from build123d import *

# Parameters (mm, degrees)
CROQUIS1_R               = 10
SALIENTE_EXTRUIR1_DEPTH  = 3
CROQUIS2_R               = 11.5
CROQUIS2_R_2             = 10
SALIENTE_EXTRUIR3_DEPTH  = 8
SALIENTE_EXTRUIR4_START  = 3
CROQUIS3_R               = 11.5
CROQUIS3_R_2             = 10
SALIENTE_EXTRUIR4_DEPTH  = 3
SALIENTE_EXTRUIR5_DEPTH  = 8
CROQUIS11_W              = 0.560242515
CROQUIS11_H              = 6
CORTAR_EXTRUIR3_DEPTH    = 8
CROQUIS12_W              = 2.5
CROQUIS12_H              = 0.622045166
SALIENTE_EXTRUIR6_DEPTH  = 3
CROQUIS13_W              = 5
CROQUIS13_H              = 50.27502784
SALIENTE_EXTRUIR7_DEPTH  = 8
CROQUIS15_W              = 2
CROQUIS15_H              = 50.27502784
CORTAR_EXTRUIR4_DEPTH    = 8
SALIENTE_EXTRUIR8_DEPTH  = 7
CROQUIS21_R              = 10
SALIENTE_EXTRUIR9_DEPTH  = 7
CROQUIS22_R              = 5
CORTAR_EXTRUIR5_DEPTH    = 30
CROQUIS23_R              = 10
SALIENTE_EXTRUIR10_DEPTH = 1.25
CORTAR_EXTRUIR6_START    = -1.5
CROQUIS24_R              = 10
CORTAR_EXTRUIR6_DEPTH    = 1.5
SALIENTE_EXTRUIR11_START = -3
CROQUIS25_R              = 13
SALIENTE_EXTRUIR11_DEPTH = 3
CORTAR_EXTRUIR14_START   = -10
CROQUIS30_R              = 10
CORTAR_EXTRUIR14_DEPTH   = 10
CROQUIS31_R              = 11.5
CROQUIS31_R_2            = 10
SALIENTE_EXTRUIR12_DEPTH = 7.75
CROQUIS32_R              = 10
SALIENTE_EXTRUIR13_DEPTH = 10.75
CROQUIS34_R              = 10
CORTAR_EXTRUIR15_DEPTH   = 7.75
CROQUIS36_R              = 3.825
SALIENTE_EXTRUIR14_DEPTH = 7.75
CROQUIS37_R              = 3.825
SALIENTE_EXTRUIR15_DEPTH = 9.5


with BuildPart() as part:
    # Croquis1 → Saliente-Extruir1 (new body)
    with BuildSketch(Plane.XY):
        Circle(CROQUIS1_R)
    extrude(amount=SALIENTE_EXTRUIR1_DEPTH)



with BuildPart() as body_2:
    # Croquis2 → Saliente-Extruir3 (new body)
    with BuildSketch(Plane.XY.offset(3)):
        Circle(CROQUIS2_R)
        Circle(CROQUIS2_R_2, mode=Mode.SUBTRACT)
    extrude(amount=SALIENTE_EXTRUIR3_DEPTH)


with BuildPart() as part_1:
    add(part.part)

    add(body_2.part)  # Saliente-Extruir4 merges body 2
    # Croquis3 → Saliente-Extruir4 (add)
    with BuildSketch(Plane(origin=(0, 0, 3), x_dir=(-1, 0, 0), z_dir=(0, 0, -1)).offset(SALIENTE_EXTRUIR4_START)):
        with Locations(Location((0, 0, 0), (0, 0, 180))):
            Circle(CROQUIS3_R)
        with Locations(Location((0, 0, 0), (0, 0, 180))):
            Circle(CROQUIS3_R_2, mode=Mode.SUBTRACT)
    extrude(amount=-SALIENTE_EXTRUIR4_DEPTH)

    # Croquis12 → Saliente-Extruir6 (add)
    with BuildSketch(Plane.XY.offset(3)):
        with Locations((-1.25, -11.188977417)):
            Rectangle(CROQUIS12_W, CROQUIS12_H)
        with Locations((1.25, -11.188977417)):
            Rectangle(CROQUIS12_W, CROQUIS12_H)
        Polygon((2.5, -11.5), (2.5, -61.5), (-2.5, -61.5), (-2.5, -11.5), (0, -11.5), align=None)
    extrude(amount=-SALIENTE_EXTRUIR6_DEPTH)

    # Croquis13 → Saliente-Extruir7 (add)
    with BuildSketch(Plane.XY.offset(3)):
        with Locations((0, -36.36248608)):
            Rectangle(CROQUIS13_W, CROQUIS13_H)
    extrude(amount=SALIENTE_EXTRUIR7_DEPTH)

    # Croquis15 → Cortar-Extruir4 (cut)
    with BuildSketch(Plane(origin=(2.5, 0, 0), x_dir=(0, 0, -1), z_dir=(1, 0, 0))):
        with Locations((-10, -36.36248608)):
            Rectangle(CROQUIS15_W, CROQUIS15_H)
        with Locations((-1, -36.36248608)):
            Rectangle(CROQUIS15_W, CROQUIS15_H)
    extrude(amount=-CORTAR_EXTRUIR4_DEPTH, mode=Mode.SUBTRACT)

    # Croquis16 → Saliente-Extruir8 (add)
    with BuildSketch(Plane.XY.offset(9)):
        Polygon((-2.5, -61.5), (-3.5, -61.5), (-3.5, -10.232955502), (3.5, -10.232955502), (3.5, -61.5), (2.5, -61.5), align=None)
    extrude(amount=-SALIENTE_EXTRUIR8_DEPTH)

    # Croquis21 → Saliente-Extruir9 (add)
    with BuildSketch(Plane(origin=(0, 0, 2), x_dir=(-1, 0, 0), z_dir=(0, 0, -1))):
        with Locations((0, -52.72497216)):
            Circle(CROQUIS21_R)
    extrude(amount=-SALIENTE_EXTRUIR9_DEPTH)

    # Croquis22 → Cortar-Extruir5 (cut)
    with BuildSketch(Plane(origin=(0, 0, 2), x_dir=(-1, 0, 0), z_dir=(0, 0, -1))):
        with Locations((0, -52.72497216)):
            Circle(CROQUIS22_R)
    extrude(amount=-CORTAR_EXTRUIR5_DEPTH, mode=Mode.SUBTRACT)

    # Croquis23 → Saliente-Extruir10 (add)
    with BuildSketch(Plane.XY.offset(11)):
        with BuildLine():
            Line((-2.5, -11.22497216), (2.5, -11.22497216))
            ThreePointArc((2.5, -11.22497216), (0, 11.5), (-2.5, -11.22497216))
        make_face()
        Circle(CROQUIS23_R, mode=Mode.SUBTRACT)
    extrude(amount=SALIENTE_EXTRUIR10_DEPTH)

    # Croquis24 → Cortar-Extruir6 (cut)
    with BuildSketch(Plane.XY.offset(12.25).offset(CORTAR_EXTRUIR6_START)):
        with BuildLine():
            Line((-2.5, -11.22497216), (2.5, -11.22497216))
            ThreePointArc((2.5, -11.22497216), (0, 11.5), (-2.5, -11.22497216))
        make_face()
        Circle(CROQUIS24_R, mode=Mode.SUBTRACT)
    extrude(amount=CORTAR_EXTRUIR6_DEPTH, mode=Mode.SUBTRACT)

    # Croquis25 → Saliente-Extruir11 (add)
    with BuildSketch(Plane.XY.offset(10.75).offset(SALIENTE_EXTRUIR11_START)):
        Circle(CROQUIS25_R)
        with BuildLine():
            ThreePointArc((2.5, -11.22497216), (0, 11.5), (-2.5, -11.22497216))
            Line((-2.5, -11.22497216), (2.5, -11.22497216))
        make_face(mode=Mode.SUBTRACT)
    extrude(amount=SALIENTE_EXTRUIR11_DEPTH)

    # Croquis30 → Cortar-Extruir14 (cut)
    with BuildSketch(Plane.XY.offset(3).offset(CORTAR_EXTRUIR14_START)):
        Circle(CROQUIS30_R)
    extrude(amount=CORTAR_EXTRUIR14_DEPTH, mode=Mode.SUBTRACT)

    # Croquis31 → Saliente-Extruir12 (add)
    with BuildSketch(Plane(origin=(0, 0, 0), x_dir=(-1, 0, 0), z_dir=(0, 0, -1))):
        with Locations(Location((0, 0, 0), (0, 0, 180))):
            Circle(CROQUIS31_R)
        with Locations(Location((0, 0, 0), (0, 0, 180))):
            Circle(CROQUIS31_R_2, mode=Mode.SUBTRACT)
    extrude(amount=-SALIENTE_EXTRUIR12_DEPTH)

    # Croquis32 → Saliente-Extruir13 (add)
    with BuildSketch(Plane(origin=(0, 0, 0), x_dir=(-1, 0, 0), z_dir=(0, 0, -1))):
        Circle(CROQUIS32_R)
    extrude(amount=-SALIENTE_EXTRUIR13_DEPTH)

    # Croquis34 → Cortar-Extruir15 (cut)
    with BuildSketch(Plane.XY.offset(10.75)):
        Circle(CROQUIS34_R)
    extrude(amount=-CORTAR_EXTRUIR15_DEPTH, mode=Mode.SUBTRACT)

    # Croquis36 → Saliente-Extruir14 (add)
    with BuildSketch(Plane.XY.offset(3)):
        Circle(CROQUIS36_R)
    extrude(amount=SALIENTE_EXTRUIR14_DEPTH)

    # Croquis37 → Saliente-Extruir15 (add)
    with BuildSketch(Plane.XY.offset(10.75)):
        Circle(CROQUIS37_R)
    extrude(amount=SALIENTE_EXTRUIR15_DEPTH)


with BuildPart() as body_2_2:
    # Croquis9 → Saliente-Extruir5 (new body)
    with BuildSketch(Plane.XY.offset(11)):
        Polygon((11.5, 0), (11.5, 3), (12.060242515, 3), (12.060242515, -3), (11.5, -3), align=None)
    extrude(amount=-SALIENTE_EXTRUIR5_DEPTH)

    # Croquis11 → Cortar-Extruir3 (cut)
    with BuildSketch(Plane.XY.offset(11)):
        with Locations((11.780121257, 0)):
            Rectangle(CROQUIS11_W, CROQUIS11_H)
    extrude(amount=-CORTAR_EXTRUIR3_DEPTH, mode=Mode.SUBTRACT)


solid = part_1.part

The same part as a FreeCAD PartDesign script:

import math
import FreeCAD as App
import Part
import Sketcher

V = App.Vector
Q = App.Units.Quantity

doc = App.newDocument("Part")
body = doc.addObject("PartDesign::Body", "Body")

# Sketch on XY plane
sketch1 = body.newObject("Sketcher::SketchObject", "Sketch")
sketch1.AttachmentSupport = (doc.getObject("XY_Plane"), [""])
sketch1.MapMode = "FlatFace"
sketch1.addGeometry(Part.Circle(V(0, 0, 0), V(0, 0, 1), 10), False)
sketch1.addConstraint([
    Sketcher.Constraint("Coincident", 0, 3, -1, 1),
    Sketcher.Constraint("Diameter", 0, Q("20 mm")),
])
pad1 = body.newObject("PartDesign::Pad", "Pad")
pad1.Profile = sketch1
pad1.Length = 3
body2 = doc.addObject("PartDesign::Body", "Body001")

# Sketch on XY plane
sketch2 = body2.newObject("Sketcher::SketchObject", "Sketch001")
sketch2.AttachmentSupport = (doc.getObject("XY_Plane001"), [""])
sketch2.MapMode = "FlatFace"
sketch2.AttachmentOffset = App.Placement(V(0, 0, 3), App.Rotation())
sketch2.addGeometry([
    Part.Circle(V(0, 0, 0), V(0, 0, 1), 12),
    Part.Circle(V(0, 0, 0), V(0, 0, 1), 10),
], False)
sketch2.addConstraint([
    Sketcher.Constraint("Coincident", 0, 3, -1, 1),
    Sketcher.Constraint("Coincident", 1, 3, -1, 1),
    Sketcher.Constraint("Diameter", 0, Q("23 mm")),
    Sketcher.Constraint("Diameter", 1, Q("20 mm")),
])
pad2 = body2.newObject("PartDesign::Pad", "Pad001")
pad2.Profile = sketch2
pad2.Length = 8
body.AllowCompound = True
doc.recompute()

boolean = body.newObject("PartDesign::Boolean", "Boolean")
boolean.Type = "Fuse"
boolean.addObjects([body2])

# Sketch on XY plane
sketch3 = body.newObject("Sketcher::SketchObject", "Sketch002")
sketch3.AttachmentSupport = (doc.getObject("XY_Plane"), [""])
sketch3.MapMode = "FlatFace"
sketch3.addGeometry([
    Part.Circle(V(0, 0, 0), V(0, 0, 1), 12),
    Part.Circle(V(0, 0, 0), V(0, 0, 1), 10),
], False)
sketch3.addConstraint([
    Sketcher.Constraint("Coincident", 0, 3, -1, 1),
    Sketcher.Constraint("Coincident", 1, 3, -1, 1),
    Sketcher.Constraint("Diameter", 0, Q("23 mm")),
    Sketcher.Constraint("Diameter", 1, Q("20 mm")),
])
pad3 = body.newObject("PartDesign::Pad", "Pad002")
pad3.Profile = sketch3
pad3.Length = 3

# Sketch on XY plane
sketch4 = body.newObject("Sketcher::SketchObject", "Sketch003")
sketch4.AttachmentSupport = (doc.getObject("XY_Plane"), [""])
sketch4.MapMode = "FlatFace"
sketch4.AttachmentOffset = App.Placement(V(0, 0, 3), App.Rotation())
sketch4.addGeometry([
    Part.LineSegment(V(-2, -11, 0), V(-2, -62, 0)),
    Part.LineSegment(V(-2, -62, 0), V(2, -62, 0)),
    Part.LineSegment(V(2, -62, 0), V(2, -11, 0)),
    Part.LineSegment(V(2, -11, 0), V(-2, -11, 0)),
], False)
sketch4.addConstraint([
    Sketcher.Constraint("Coincident", 0, 2, 1, 1),
    Sketcher.Constraint("Coincident", 1, 2, 2, 1),
    Sketcher.Constraint("Coincident", 2, 2, 3, 1),
    Sketcher.Constraint("Coincident", 3, 2, 0, 1),
    Sketcher.Constraint("Vertical", 0),
    Sketcher.Constraint("Horizontal", 1),
    Sketcher.Constraint("Vertical", 2),
    Sketcher.Constraint("Horizontal", 3),
    Sketcher.Constraint("DistanceX", 1, 1, 1, 2, Q("5 mm")),
    Sketcher.Constraint("DistanceX", 0, 2, -1, 1, Q("2.5 mm")),
    Sketcher.Constraint("DistanceY", 0, 2, -1, 1, Q("61.5 mm")),
    Sketcher.Constraint("DistanceY", 0, 2, 0, 1, Q("50.622045 mm")),
])
pad4 = body.newObject("PartDesign::Pad", "Pad003")
pad4.Profile = sketch4
pad4.Length = 3
pad4.Reversed = True

# Sketch on XY plane
sketch5 = body.newObject("Sketcher::SketchObject", "Sketch004")
sketch5.AttachmentSupport = (doc.getObject("XY_Plane"), [""])
sketch5.MapMode = "FlatFace"
sketch5.AttachmentOffset = App.Placement(V(0, 0, 3), App.Rotation())
sketch5.addGeometry([
    Part.LineSegment(V(-2, -11, 0), V(-2, -62, 0)),
    Part.LineSegment(V(-2, -62, 0), V(2, -62, 0)),
    Part.LineSegment(V(2, -62, 0), V(2, -11, 0)),
    Part.LineSegment(V(2, -11, 0), V(-2, -11, 0)),
], False)
sketch5.addConstraint([
    Sketcher.Constraint("Coincident", 0, 2, 1, 1),
    Sketcher.Constraint("Coincident", 1, 2, 2, 1),
    Sketcher.Constraint("Coincident", 2, 2, 3, 1),
    Sketcher.Constraint("Coincident", 3, 2, 0, 1),
    Sketcher.Constraint("Vertical", 0),
    Sketcher.Constraint("Horizontal", 1),
    Sketcher.Constraint("Vertical", 2),
    Sketcher.Constraint("Horizontal", 3),
    Sketcher.Constraint("DistanceX", 1, 1, 1, 2, Q("5 mm")),
    Sketcher.Constraint("DistanceX", 0, 2, -1, 1, Q("2.5 mm")),
    Sketcher.Constraint("DistanceY", 0, 2, -1, 1, Q("61.5 mm")),
    Sketcher.Constraint("DistanceY", 0, 2, 0, 1, Q("50.275028 mm")),
])
pad5 = body.newObject("PartDesign::Pad", "Pad004")
pad5.Profile = sketch5
pad5.Length = 8

# Sketch on YZ plane
sketch6 = body.newObject("Sketcher::SketchObject", "Sketch005")
sketch6.AttachmentSupport = (doc.getObject("YZ_Plane"), [""])
sketch6.MapMode = "FlatFace"
sketch6.AttachmentOffset = App.Placement(V(0, 0, 2.5), App.Rotation())
sketch6.addGeometry([
    Part.LineSegment(V(-11.2, 11, 0), V(-61.5, 11, 0)),  # 0
    Part.LineSegment(V(-61.5, 11, 0), V(-61.5, 9, 0)),  # 1
    Part.LineSegment(V(-61.5, 9, 0), V(-11.2, 9, 0)),  # 2
    Part.LineSegment(V(-11.2, 9, 0), V(-11.2, 11, 0)),  # 3
    Part.LineSegment(V(-11.2, 2, 0), V(-61.5, 2, 0)),  # 4
    Part.LineSegment(V(-61.5, 2, 0), V(-61.5, 0, 0)),  # 5
    Part.LineSegment(V(-61.5, 0, 0), V(-11.2, 0, 0)),  # 6
    Part.LineSegment(V(-11.2, 0, 0), V(-11.2, 2, 0)),  # 7
], False)
sketch6.addConstraint([
    Sketcher.Constraint("Coincident", 0, 2, 1, 1),
    Sketcher.Constraint("Coincident", 1, 2, 2, 1),
    Sketcher.Constraint("Coincident", 2, 2, 3, 1),
    Sketcher.Constraint("Coincident", 3, 2, 0, 1),
    Sketcher.Constraint("Coincident", 4, 2, 5, 1),
    Sketcher.Constraint("Coincident", 5, 2, 6, 1),
    Sketcher.Constraint("Coincident", 6, 2, 7, 1),
    Sketcher.Constraint("Coincident", 7, 2, 4, 1),
    Sketcher.Constraint("Horizontal", 0),
    Sketcher.Constraint("Vertical", 1),
    Sketcher.Constraint("Horizontal", 2),
    Sketcher.Constraint("Vertical", 3),
    Sketcher.Constraint("Horizontal", 4),
    Sketcher.Constraint("Vertical", 5),
    Sketcher.Constraint("Horizontal", 6),
    Sketcher.Constraint("Vertical", 7),
    Sketcher.Constraint("PointOnObject", 5, 2, -1),
    Sketcher.Constraint("Vertical", 1, 2, 4, 2),
    Sketcher.Constraint("Vertical", 3, 2, 6, 2),
    Sketcher.Constraint("Equal", 3, 5),
    Sketcher.Constraint("DistanceY", 1, 2, 1, 1, Q("2 mm")),
    Sketcher.Constraint("DistanceY", -1, 1, 0, 2, Q("11 mm")),
    Sketcher.Constraint("DistanceX", 0, 2, -1, 1, Q("61.5 mm")),
    Sketcher.Constraint("DistanceX", 0, 2, 0, 1, Q("50.275028 mm")),
])
pocket1 = body.newObject("PartDesign::Pocket", "Pocket")
pocket1.Profile = sketch6
pocket1.Length = 8

# Sketch on XY plane
sketch7 = body.newObject("Sketcher::SketchObject", "Sketch006")
sketch7.AttachmentSupport = (doc.getObject("XY_Plane"), [""])
sketch7.MapMode = "FlatFace"
sketch7.AttachmentOffset = App.Placement(V(0, 0, 9), App.Rotation())
sketch7.addGeometry([
    Part.LineSegment(V(-4, -62, 0), V(4, -62, 0)),
    Part.LineSegment(V(4, -62, 0), V(4, -10, 0)),
    Part.LineSegment(V(4, -10, 0), V(-4, -10, 0)),
    Part.LineSegment(V(-4, -10, 0), V(-4, -62, 0)),
], False)
sketch7.addConstraint([
    Sketcher.Constraint("Coincident", 0, 2, 1, 1),
    Sketcher.Constraint("Coincident", 1, 2, 2, 1),
    Sketcher.Constraint("Coincident", 2, 2, 3, 1),
    Sketcher.Constraint("Coincident", 3, 2, 0, 1),
    Sketcher.Constraint("Horizontal", 0),
    Sketcher.Constraint("Vertical", 1),
    Sketcher.Constraint("Horizontal", 2),
    Sketcher.Constraint("Vertical", 3),
    Sketcher.Constraint("DistanceX", 0, 1, 0, 2, Q("7 mm")),
    Sketcher.Constraint("DistanceX", -1, 1, 0, 2, Q("3.5 mm")),
    Sketcher.Constraint("DistanceY", 0, 2, -1, 1, Q("61.5 mm")),
    Sketcher.Constraint("DistanceY", 1, 1, 1, 2, Q("51.267044 mm")),
])
pad6 = body.newObject("PartDesign::Pad", "Pad005")
pad6.Profile = sketch7
pad6.Length = 7
pad6.Reversed = True

# Sketch on XY plane
sketch8 = body.newObject("Sketcher::SketchObject", "Sketch007")
sketch8.AttachmentSupport = (doc.getObject("XY_Plane"), [""])
sketch8.MapMode = "FlatFace"
sketch8.AttachmentOffset = App.Placement(V(0, 0, 2), App.Rotation())
sketch8.addGeometry(Part.Circle(V(0, -53, 0), V(0, 0, 1), 10), False)
sketch8.addConstraint([
    Sketcher.Constraint("PointOnObject", 0, 3, -2),
    Sketcher.Constraint("Diameter", 0, Q("20 mm")),
    Sketcher.Constraint("DistanceY", 0, 3, -1, 1, Q("52.724972 mm")),
])
pad7 = body.newObject("PartDesign::Pad", "Pad006")
pad7.Profile = sketch8
pad7.Length = 7

# Sketch on XY plane
sketch9 = body.newObject("Sketcher::SketchObject", "Sketch008")
sketch9.AttachmentSupport = (doc.getObject("XY_Plane"), [""])
sketch9.MapMode = "FlatFace"
sketch9.AttachmentOffset = App.Placement(V(0, 0, 2), App.Rotation())
sketch9.addGeometry(Part.Circle(V(0, -53, 0), V(0, 0, 1), 5), False)
sketch9.addConstraint([
    Sketcher.Constraint("PointOnObject", 0, 3, -2),
    Sketcher.Constraint("Diameter", 0, Q("10 mm")),
    Sketcher.Constraint("DistanceY", 0, 3, -1, 1, Q("52.724972 mm")),
])
pocket2 = body.newObject("PartDesign::Pocket", "Pocket001")
pocket2.Profile = sketch9
pocket2.Length = 30
pocket2.Reversed = True

# Sketch on XY plane
sketch10 = body.newObject("Sketcher::SketchObject", "Sketch009")
sketch10.AttachmentSupport = (doc.getObject("XY_Plane"), [""])
sketch10.MapMode = "FlatFace"
sketch10.AttachmentOffset = App.Placement(V(0, 0, 11), App.Rotation())
sketch10.addGeometry([
    Part.LineSegment(V(-2, -11, 0), V(2, -11, 0)),
    Part.ArcOfCircle(Part.Circle(V(0, 0, 0), V(0, 0, 1), 12), math.radians(-77), math.radians(257)),
    Part.Circle(V(0, 0, 0), V(0, 0, 1), 10),
], False)
sketch10.addConstraint([
    Sketcher.Constraint("Coincident", 0, 1, 1, 2),
    Sketcher.Constraint("Coincident", 1, 1, 0, 2),
    Sketcher.Constraint("Horizontal", 0),
    Sketcher.Constraint("Coincident", 1, 3, -1, 1),
    Sketcher.Constraint("Coincident", 2, 3, -1, 1),
    Sketcher.Constraint("Diameter", 2, Q("20 mm")),
    Sketcher.Constraint("Radius", 1, Q("11.5 mm")),
    Sketcher.Constraint("DistanceX", 0, 1, 0, 2, Q("5 mm")),
])
pad8 = body.newObject("PartDesign::Pad", "Pad007")
pad8.Profile = sketch10
pad8.Length = 1.25

# Sketch on XY plane
sketch11 = body.newObject("Sketcher::SketchObject", "Sketch010")
sketch11.AttachmentSupport = (doc.getObject("XY_Plane"), [""])
sketch11.MapMode = "FlatFace"
sketch11.AttachmentOffset = App.Placement(V(0, 0, 10.75), App.Rotation())
sketch11.addGeometry([
    Part.LineSegment(V(-2, -11, 0), V(2, -11, 0)),
    Part.ArcOfCircle(Part.Circle(V(0, 0, 0), V(0, 0, 1), 12), math.radians(-77), math.radians(257)),
    Part.Circle(V(0, 0, 0), V(0, 0, 1), 10),
], False)
sketch11.addConstraint([
    Sketcher.Constraint("Coincident", 0, 1, 1, 2),
    Sketcher.Constraint("Coincident", 1, 1, 0, 2),
    Sketcher.Constraint("Horizontal", 0),
    Sketcher.Constraint("Coincident", 1, 3, -1, 1),
    Sketcher.Constraint("Coincident", 2, 3, -1, 1),
    Sketcher.Constraint("Diameter", 2, Q("20 mm")),
    Sketcher.Constraint("Radius", 1, Q("11.5 mm")),
    Sketcher.Constraint("DistanceX", 0, 1, 0, 2, Q("5 mm")),
])
pocket3 = body.newObject("PartDesign::Pocket", "Pocket002")
pocket3.Profile = sketch11
pocket3.Length = 1.5
pocket3.Reversed = True

# Sketch on XY plane
sketch12 = body.newObject("Sketcher::SketchObject", "Sketch011")
sketch12.AttachmentSupport = (doc.getObject("XY_Plane"), [""])
sketch12.MapMode = "FlatFace"
sketch12.AttachmentOffset = App.Placement(V(0, 0, 7.75), App.Rotation())
sketch12.addGeometry([
    Part.Circle(V(0, 0, 0), V(0, 0, 1), 13),
    Part.ArcOfCircle(Part.Circle(V(0, 0, 0), V(0, 0, 1), 12), math.radians(-77), math.radians(257)),
    Part.LineSegment(V(2, -11, 0), V(-2, -11, 0)),
], False)
sketch12.addConstraint([
    Sketcher.Constraint("Coincident", 1, 1, 2, 1),
    Sketcher.Constraint("Coincident", 2, 2, 1, 2),
    Sketcher.Constraint("Horizontal", 2),
    Sketcher.Constraint("Coincident", 0, 3, -1, 1),
    Sketcher.Constraint("Coincident", 1, 3, -1, 1),
    Sketcher.Constraint("Diameter", 0, Q("26 mm")),
    Sketcher.Constraint("Radius", 1, Q("11.5 mm")),
    Sketcher.Constraint("DistanceX", 2, 2, 2, 1, Q("5 mm")),
])
pad9 = body.newObject("PartDesign::Pad", "Pad008")
pad9.Profile = sketch12
pad9.Length = 3

# Sketch on XY plane
sketch13 = body.newObject("Sketcher::SketchObject", "Sketch012")
sketch13.AttachmentSupport = (doc.getObject("XY_Plane"), [""])
sketch13.MapMode = "FlatFace"
sketch13.AttachmentOffset = App.Placement(V(0, 0, -7), App.Rotation())
sketch13.addGeometry(Part.Circle(V(0, 0, 0), V(0, 0, 1), 10), False)
sketch13.addConstraint([
    Sketcher.Constraint("Coincident", 0, 3, -1, 1),
    Sketcher.Constraint("Diameter", 0, Q("20 mm")),
])
pocket4 = body.newObject("PartDesign::Pocket", "Pocket003")
pocket4.Profile = sketch13
pocket4.Length = 10
pocket4.Reversed = True

# Sketch on XY plane
sketch14 = body.newObject("Sketcher::SketchObject", "Sketch013")
sketch14.AttachmentSupport = (doc.getObject("XY_Plane"), [""])
sketch14.MapMode = "FlatFace"
sketch14.addGeometry([
    Part.Circle(V(0, 0, 0), V(0, 0, 1), 12),
    Part.Circle(V(0, 0, 0), V(0, 0, 1), 10),
], False)
sketch14.addConstraint([
    Sketcher.Constraint("Coincident", 0, 3, -1, 1),
    Sketcher.Constraint("Coincident", 1, 3, -1, 1),
    Sketcher.Constraint("Diameter", 0, Q("23 mm")),
    Sketcher.Constraint("Diameter", 1, Q("20 mm")),
])
pad10 = body.newObject("PartDesign::Pad", "Pad009")
pad10.Profile = sketch14
pad10.Length = 7.75

# Sketch on XY plane
sketch15 = body.newObject("Sketcher::SketchObject", "Sketch014")
sketch15.AttachmentSupport = (doc.getObject("XY_Plane"), [""])
sketch15.MapMode = "FlatFace"
sketch15.addGeometry(Part.Circle(V(0, 0, 0), V(0, 0, 1), 10), False)
sketch15.addConstraint([
    Sketcher.Constraint("Coincident", 0, 3, -1, 1),
    Sketcher.Constraint("Diameter", 0, Q("20 mm")),
])
pad11 = body.newObject("PartDesign::Pad", "Pad010")
pad11.Profile = sketch15
pad11.Length = 10.75

# Sketch on XY plane
sketch16 = body.newObject("Sketcher::SketchObject", "Sketch015")
sketch16.AttachmentSupport = (doc.getObject("XY_Plane"), [""])
sketch16.MapMode = "FlatFace"
sketch16.AttachmentOffset = App.Placement(V(0, 0, 10.75), App.Rotation())
sketch16.addGeometry(Part.Circle(V(0, 0, 0), V(0, 0, 1), 10), False)
sketch16.addConstraint([
    Sketcher.Constraint("Coincident", 0, 3, -1, 1),
    Sketcher.Constraint("Diameter", 0, Q("20 mm")),
])
pocket5 = body.newObject("PartDesign::Pocket", "Pocket004")
pocket5.Profile = sketch16
pocket5.Length = 7.75

# Sketch on XY plane
sketch17 = body.newObject("Sketcher::SketchObject", "Sketch016")
sketch17.AttachmentSupport = (doc.getObject("XY_Plane"), [""])
sketch17.MapMode = "FlatFace"
sketch17.AttachmentOffset = App.Placement(V(0, 0, 3), App.Rotation())
sketch17.addGeometry(Part.Circle(V(0, 0, 0), V(0, 0, 1), 3.8), False)
sketch17.addConstraint([
    Sketcher.Constraint("Coincident", 0, 3, -1, 1),
    Sketcher.Constraint("Diameter", 0, Q("7.65 mm")),
])
pad12 = body.newObject("PartDesign::Pad", "Pad011")
pad12.Profile = sketch17
pad12.Length = 7.75

# Sketch on XY plane
sketch18 = body.newObject("Sketcher::SketchObject", "Sketch017")
sketch18.AttachmentSupport = (doc.getObject("XY_Plane"), [""])
sketch18.MapMode = "FlatFace"
sketch18.AttachmentOffset = App.Placement(V(0, 0, 10.75), App.Rotation())
sketch18.addGeometry(Part.Circle(V(0, 0, 0), V(0, 0, 1), 3.8), False)
sketch18.addConstraint([
    Sketcher.Constraint("Coincident", 0, 3, -1, 1),
    Sketcher.Constraint("Diameter", 0, Q("7.65 mm")),
])
pad13 = body.newObject("PartDesign::Pad", "Pad012")
pad13.Profile = sketch18
pad13.Length = 9.5
body3 = doc.addObject("PartDesign::Body", "Body002")

# Sketch on XY plane
sketch19 = body3.newObject("Sketcher::SketchObject", "Sketch018")
sketch19.AttachmentSupport = (doc.getObject("XY_Plane002"), [""])
sketch19.MapMode = "FlatFace"
sketch19.AttachmentOffset = App.Placement(V(0, 0, 11), App.Rotation())
sketch19.addGeometry([
    Part.LineSegment(V(11.5, 3, 0), V(11.5, -3, 0)),
    Part.LineSegment(V(11.5, -3, 0), V(12.1, -3, 0)),
    Part.LineSegment(V(12.1, -3, 0), V(12.1, 3, 0)),
    Part.LineSegment(V(12.1, 3, 0), V(11.5, 3, 0)),
], False)
sketch19.addConstraint([
    Sketcher.Constraint("Coincident", 0, 2, 1, 1),
    Sketcher.Constraint("Coincident", 1, 2, 2, 1),
    Sketcher.Constraint("Coincident", 2, 2, 3, 1),
    Sketcher.Constraint("Coincident", 3, 2, 0, 1),
    Sketcher.Constraint("Vertical", 0),
    Sketcher.Constraint("Horizontal", 1),
    Sketcher.Constraint("Vertical", 2),
    Sketcher.Constraint("Horizontal", 3),
    Sketcher.Constraint("DistanceY", 0, 2, 0, 1, Q("6 mm")),
    Sketcher.Constraint("DistanceY", 0, 2, -1, 1, Q("3 mm")),
    Sketcher.Constraint("DistanceX", -1, 1, 0, 2, Q("11.5 mm")),
    Sketcher.Constraint("DistanceX", 1, 1, 1, 2, Q("0.560243 mm")),
])
pad14 = body3.newObject("PartDesign::Pad", "Pad013")
pad14.Profile = sketch19
pad14.Length = 8
pad14.Reversed = True

# Sketch on XY plane
sketch20 = body3.newObject("Sketcher::SketchObject", "Sketch019")
sketch20.AttachmentSupport = (doc.getObject("XY_Plane002"), [""])
sketch20.MapMode = "FlatFace"
sketch20.AttachmentOffset = App.Placement(V(0, 0, 11), App.Rotation())
sketch20.addGeometry([
    Part.LineSegment(V(11.5, 3, 0), V(11.5, -3, 0)),
    Part.LineSegment(V(11.5, -3, 0), V(12.1, -3, 0)),
    Part.LineSegment(V(12.1, -3, 0), V(12.1, 3, 0)),
    Part.LineSegment(V(12.1, 3, 0), V(11.5, 3, 0)),
], False)
sketch20.addConstraint([
    Sketcher.Constraint("Coincident", 0, 2, 1, 1),
    Sketcher.Constraint("Coincident", 1, 2, 2, 1),
    Sketcher.Constraint("Coincident", 2, 2, 3, 1),
    Sketcher.Constraint("Coincident", 3, 2, 0, 1),
    Sketcher.Constraint("Vertical", 0),
    Sketcher.Constraint("Horizontal", 1),
    Sketcher.Constraint("Vertical", 2),
    Sketcher.Constraint("Horizontal", 3),
    Sketcher.Constraint("DistanceY", 0, 2, 0, 1, Q("6 mm")),
    Sketcher.Constraint("DistanceY", 0, 2, -1, 1, Q("3 mm")),
    Sketcher.Constraint("DistanceX", -1, 1, 0, 2, Q("11.5 mm")),
    Sketcher.Constraint("DistanceX", 1, 1, 1, 2, Q("0.560243 mm")),
])
pocket6 = body3.newObject("PartDesign::Pocket", "Pocket005")
pocket6.Profile = sketch20
pocket6.Length = 8

doc.recompute()
